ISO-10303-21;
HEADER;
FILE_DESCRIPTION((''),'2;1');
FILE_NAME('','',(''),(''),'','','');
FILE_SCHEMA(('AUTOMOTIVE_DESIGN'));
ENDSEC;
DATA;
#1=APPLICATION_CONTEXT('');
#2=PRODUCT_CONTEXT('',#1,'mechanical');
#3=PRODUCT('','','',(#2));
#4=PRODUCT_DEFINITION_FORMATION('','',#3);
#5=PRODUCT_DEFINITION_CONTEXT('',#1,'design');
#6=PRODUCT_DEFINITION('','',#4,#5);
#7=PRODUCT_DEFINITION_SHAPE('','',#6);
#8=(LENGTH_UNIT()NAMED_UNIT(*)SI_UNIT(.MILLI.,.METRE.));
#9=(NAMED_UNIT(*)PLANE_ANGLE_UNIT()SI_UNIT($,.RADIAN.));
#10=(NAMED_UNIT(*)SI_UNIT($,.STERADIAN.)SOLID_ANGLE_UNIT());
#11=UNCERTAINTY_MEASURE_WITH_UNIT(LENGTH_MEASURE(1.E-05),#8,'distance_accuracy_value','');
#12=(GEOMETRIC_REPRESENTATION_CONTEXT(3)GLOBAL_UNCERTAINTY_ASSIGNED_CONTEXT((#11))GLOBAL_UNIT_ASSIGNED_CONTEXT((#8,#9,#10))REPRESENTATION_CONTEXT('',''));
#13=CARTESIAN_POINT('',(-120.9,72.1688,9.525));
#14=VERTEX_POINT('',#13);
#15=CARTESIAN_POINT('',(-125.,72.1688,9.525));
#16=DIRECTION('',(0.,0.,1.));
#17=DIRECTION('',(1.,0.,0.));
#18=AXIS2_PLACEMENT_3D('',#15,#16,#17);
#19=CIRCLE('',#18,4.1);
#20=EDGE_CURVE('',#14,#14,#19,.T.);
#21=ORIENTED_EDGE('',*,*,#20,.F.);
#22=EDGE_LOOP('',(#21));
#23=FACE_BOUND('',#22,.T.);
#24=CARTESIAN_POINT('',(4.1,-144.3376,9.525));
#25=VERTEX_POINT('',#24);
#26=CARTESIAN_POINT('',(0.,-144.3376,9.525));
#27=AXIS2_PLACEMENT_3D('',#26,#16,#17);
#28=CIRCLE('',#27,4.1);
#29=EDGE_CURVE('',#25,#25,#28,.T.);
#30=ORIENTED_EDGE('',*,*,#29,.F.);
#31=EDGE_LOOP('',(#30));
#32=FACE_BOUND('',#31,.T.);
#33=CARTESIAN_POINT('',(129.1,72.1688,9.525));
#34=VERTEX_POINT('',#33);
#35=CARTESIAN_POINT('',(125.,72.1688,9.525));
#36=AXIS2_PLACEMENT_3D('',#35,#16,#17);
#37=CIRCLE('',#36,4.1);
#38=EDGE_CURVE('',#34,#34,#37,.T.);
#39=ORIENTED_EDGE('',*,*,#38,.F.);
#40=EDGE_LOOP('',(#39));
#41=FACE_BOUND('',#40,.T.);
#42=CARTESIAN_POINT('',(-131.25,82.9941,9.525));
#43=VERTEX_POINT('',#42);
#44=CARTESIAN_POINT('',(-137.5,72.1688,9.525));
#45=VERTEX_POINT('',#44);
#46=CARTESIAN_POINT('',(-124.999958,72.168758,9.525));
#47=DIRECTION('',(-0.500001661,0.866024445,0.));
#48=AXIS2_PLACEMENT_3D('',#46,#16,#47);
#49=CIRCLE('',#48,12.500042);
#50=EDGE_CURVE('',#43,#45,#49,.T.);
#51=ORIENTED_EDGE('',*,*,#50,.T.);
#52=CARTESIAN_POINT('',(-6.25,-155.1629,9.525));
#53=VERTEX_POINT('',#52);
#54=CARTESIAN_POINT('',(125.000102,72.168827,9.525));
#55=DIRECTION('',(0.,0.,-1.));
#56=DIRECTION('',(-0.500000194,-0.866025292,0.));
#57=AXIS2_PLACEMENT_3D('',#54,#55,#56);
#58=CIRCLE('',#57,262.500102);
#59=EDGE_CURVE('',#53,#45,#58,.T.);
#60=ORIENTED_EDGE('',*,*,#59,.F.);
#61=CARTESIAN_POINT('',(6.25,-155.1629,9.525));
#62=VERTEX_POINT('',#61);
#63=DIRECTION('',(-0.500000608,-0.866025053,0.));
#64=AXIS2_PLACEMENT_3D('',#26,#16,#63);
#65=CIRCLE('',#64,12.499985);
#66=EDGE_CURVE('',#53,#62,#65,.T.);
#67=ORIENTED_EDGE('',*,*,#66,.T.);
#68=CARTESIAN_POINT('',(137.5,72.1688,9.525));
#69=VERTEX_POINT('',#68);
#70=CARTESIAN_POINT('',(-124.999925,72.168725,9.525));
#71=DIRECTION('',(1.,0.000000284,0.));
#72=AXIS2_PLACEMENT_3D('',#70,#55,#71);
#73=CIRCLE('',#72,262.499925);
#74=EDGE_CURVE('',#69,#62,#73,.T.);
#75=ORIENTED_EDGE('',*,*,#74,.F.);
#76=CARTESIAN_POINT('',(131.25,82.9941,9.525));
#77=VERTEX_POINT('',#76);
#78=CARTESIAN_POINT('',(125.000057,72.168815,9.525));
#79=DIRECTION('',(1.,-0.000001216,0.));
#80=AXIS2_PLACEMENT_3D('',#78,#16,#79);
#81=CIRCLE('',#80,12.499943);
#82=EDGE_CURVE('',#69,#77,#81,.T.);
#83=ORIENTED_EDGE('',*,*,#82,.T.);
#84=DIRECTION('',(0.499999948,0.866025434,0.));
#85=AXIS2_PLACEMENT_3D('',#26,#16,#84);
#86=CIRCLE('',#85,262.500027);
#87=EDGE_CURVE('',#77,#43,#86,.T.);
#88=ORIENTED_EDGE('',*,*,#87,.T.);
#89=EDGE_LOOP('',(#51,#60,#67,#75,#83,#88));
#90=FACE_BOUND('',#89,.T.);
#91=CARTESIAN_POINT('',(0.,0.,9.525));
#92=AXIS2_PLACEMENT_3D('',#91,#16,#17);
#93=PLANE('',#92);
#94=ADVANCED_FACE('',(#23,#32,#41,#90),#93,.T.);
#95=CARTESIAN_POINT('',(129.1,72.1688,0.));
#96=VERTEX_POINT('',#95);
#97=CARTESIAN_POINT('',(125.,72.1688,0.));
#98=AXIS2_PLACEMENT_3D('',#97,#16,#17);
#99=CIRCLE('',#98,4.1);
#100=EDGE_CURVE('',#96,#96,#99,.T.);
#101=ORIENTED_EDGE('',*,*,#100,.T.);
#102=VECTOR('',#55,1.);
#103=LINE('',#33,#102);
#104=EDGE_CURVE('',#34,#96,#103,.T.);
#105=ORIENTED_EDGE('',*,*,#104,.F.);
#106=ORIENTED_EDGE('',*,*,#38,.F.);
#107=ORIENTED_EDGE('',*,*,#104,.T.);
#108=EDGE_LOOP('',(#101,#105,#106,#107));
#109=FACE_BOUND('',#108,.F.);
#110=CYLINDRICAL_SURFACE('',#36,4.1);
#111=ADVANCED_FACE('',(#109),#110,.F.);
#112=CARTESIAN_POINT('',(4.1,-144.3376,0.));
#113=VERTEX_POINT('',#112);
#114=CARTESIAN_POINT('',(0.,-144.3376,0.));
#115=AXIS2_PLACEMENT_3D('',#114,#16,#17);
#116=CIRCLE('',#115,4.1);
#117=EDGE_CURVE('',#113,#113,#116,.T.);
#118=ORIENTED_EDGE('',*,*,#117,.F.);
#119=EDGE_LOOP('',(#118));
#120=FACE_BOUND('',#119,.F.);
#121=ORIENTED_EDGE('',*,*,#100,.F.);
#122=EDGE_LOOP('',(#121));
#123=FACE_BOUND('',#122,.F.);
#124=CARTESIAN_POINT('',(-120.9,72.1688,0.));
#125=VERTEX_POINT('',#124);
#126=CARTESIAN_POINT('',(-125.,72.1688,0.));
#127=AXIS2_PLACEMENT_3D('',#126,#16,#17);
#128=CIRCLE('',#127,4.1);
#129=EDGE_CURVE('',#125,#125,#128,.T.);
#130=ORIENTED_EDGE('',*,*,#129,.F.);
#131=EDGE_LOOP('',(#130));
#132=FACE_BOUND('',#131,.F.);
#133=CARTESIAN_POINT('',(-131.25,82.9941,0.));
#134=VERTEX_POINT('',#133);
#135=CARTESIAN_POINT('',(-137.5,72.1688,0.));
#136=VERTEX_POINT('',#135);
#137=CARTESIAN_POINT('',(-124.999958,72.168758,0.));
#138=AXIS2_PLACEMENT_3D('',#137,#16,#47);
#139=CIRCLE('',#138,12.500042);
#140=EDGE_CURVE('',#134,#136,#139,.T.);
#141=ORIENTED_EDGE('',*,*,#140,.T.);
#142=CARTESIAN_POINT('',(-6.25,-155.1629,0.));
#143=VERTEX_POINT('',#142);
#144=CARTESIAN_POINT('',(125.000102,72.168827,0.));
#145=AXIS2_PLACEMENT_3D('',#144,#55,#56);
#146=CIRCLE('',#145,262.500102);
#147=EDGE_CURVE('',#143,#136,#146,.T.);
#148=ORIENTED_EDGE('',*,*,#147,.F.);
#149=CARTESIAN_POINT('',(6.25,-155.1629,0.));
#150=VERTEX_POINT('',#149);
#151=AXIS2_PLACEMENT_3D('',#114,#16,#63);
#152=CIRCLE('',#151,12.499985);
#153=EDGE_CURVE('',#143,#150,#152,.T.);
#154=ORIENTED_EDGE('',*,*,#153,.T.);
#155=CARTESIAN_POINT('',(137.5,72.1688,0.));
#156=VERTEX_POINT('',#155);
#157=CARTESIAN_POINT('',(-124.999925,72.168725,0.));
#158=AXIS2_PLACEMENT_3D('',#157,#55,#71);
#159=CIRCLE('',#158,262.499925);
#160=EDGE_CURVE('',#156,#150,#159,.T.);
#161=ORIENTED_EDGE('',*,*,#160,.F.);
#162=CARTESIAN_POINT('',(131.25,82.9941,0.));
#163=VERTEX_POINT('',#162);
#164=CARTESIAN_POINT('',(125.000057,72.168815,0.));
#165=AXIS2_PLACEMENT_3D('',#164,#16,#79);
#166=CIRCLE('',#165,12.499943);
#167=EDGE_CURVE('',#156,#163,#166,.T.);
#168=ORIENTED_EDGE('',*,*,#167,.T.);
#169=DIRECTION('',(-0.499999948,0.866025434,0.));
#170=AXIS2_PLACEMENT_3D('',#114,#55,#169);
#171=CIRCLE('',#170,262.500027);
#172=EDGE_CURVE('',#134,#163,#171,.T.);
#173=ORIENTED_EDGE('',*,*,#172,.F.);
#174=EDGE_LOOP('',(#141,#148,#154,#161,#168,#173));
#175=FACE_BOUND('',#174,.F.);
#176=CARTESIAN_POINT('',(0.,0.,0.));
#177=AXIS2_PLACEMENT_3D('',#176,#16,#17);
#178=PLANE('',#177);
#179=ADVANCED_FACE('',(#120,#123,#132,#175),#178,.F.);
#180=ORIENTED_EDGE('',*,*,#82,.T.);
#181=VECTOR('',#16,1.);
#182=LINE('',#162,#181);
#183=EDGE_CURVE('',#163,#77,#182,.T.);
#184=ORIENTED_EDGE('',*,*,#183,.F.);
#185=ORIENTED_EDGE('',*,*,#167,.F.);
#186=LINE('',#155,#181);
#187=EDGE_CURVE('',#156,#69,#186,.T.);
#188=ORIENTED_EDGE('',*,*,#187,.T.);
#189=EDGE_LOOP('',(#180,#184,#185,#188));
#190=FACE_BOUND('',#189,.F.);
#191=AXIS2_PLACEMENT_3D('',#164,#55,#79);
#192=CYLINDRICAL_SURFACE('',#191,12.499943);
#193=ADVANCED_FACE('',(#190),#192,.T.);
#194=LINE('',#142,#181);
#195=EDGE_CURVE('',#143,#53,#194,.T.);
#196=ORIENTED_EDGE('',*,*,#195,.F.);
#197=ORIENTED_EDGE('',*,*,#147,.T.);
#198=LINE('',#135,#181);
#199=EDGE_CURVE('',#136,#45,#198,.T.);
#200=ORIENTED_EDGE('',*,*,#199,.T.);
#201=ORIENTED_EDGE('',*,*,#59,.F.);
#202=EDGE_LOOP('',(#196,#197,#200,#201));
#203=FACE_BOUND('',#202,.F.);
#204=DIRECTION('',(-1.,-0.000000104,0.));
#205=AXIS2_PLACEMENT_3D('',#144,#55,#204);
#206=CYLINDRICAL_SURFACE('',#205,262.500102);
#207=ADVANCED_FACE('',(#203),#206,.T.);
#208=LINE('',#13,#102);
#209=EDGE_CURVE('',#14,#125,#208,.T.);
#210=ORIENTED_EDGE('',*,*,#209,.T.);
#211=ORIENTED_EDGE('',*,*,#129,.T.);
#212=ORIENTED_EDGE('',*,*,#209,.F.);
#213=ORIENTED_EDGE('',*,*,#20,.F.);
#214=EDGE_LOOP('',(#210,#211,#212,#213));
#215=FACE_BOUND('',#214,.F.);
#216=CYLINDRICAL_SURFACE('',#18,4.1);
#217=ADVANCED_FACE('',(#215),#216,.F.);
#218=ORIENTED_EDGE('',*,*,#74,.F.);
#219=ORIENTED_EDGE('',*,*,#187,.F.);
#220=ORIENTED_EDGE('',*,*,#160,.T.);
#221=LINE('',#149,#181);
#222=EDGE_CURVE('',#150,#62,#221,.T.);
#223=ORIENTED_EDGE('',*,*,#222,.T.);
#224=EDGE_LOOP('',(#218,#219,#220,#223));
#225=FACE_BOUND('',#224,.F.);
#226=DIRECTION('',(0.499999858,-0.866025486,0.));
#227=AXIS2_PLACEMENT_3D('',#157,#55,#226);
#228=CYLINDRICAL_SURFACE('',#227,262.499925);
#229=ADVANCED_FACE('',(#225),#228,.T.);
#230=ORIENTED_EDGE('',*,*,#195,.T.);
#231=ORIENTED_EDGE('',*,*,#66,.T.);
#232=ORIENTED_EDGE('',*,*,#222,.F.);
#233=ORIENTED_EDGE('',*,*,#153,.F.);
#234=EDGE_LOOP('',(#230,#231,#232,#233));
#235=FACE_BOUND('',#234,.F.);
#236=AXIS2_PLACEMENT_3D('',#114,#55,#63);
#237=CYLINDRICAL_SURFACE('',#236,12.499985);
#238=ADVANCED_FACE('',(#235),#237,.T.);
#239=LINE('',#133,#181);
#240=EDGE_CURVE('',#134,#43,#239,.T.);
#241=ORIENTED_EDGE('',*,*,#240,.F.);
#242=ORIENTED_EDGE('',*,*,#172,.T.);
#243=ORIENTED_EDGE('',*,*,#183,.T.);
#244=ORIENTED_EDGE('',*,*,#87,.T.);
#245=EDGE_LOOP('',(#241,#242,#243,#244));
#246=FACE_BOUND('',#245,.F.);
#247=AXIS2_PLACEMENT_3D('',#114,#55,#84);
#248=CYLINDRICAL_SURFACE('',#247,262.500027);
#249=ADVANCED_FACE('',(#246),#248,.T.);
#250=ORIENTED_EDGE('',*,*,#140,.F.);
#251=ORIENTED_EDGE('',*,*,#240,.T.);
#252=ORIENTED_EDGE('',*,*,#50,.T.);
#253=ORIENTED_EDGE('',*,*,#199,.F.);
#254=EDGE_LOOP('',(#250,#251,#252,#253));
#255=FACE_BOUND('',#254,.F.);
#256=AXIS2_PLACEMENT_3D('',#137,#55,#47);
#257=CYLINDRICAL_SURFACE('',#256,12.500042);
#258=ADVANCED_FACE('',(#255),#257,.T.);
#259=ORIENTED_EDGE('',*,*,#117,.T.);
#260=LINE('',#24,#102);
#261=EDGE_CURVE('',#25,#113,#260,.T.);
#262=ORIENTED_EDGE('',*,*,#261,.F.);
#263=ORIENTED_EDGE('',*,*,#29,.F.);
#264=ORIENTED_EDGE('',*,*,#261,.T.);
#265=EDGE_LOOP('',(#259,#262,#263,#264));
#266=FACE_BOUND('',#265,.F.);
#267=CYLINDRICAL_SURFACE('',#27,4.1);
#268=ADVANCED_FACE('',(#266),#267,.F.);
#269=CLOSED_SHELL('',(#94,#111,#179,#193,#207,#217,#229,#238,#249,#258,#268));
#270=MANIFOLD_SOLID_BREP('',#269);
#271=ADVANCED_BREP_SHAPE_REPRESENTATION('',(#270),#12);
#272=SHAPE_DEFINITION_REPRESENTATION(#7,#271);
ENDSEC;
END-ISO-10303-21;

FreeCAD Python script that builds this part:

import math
import FreeCAD as App
import Part
import Sketcher

V = App.Vector
Q = App.Units.Quantity

doc = App.newDocument("Part")
body = doc.addObject("PartDesign::Body", "Body")

sketch1 = body.newObject("Sketcher::SketchObject", "Sketch")
sketch1.AttachmentSupport = (doc.getObject("XY_Plane"), [""])
sketch1.MapMode = "FlatFace"
sketch1.addGeometry(Part.ArcOfCircle(Part.Circle(V(-125, 72, 0), V(0, 0, 1), 263), math.radians(-60), math.radians(0)), False)
sketch1.addGeometry(Part.ArcOfCircle(Part.Circle(V(125, 72, 0), V(0, 0, 1), 12), math.radians(0), math.radians(60)), False)
sketch1.addGeometry(Part.ArcOfCircle(Part.Circle(V(0, -144, 0), V(0, 0, 1), 263), math.radians(60), math.radians(120)), False)
sketch1.addGeometry(Part.ArcOfCircle(Part.Circle(V(-125, 72, 0), V(0, 0, 1), 12), math.radians(120), math.radians(180)), False)
sketch1.addGeometry(Part.ArcOfCircle(Part.Circle(V(125, 72, 0), V(0, 0, 1), 262), math.radians(180), math.radians(240)), False)
sketch1.addGeometry(Part.ArcOfCircle(Part.Circle(V(0, -144, 0), V(0, 0, 1), 12), math.radians(-120), math.radians(-60)), False)
sketch1.addConstraint(Sketcher.Constraint("Tangent", 0, 2, 1, 1))
sketch1.addConstraint(Sketcher.Constraint("Tangent", 1, 2, 2, 1))
sketch1.addConstraint(Sketcher.Constraint("Tangent", 2, 2, 3, 1))
sketch1.addConstraint(Sketcher.Constraint("Tangent", 3, 2, 4, 1))
sketch1.addConstraint(Sketcher.Constraint("Tangent", 4, 2, 5, 1))
sketch1.addConstraint(Sketcher.Constraint("Tangent", 5, 2, 0, 1))
sketch1.addConstraint(Sketcher.Constraint("Coincident", 3, 3, 0, 3))
sketch1.addConstraint(Sketcher.Constraint("Coincident", 4, 3, 1, 3))
sketch1.addConstraint(Sketcher.Constraint("Equal", 0, 2))
sketch1.addConstraint(Sketcher.Constraint("Equal", 1, 3))
sketch1.addConstraint(Sketcher.Constraint("Equal", 3, 5))
sketch1.addConstraint(Sketcher.Constraint("Symmetric", 0, 3, 1, 3, -2))
sketch1.addConstraint(Sketcher.Constraint("Radius", 1, Q("12.5 mm")))
sketch1.addConstraint(Sketcher.Constraint("DistanceX", 0, 3, 1, 3, Q("250 mm")))
sketch1.addConstraint(Sketcher.Constraint("DistanceY", -1, 1, 1, 2, Q("82.994 mm")))
pad1 = body.newObject("PartDesign::Pad", "Pad")
pad1.Profile = sketch1
pad1.Length = 9.525

sketch2 = body.newObject("Sketcher::SketchObject", "Sketch001")
sketch2.AttachmentSupport = (doc.getObject("XY_Plane"), [""])
sketch2.MapMode = "FlatFace"
sketch2.AttachmentOffset = App.Placement(V(0, 0, 9.525), App.Rotation())
sketch2.addGeometry(Part.Circle(V(-125, 72.2, 0), V(0, 0, 1), 4.1), False)
sketch2.addGeometry(Part.Circle(V(125, 72.2, 0), V(0, 0, 1), 4.1), False)
sketch2.addGeometry(Part.Circle(V(0, -144.3, 0), V(0, 0, 1), 4.1), False)
sketch2.addConstraint(Sketcher.Constraint("Equal", 0, 1))
sketch2.addConstraint(Sketcher.Constraint("Equal", 1, 2))
sketch2.addConstraint(Sketcher.Constraint("Symmetric", 0, 3, 1, 3, -2))
sketch2.addConstraint(Sketcher.Constraint("PointOnObject", 2, 3, -2))
sketch2.addConstraint(Sketcher.Constraint("Diameter", 0, Q("8.2 mm")))
sketch2.addConstraint(Sketcher.Constraint("DistanceX", 0, 3, -1, 1, Q("125 mm")))
sketch2.addConstraint(Sketcher.Constraint("DistanceY", -1, 1, 0, 3, Q("72.1688 mm")))
sketch2.addConstraint(Sketcher.Constraint("DistanceY", 2, 3, -1, 1, Q("144.3376 mm")))
pocket1 = body.newObject("PartDesign::Pocket", "Pocket")
pocket1.Profile = sketch2
pocket1.Type = "ThroughAll"

doc.recompute()
